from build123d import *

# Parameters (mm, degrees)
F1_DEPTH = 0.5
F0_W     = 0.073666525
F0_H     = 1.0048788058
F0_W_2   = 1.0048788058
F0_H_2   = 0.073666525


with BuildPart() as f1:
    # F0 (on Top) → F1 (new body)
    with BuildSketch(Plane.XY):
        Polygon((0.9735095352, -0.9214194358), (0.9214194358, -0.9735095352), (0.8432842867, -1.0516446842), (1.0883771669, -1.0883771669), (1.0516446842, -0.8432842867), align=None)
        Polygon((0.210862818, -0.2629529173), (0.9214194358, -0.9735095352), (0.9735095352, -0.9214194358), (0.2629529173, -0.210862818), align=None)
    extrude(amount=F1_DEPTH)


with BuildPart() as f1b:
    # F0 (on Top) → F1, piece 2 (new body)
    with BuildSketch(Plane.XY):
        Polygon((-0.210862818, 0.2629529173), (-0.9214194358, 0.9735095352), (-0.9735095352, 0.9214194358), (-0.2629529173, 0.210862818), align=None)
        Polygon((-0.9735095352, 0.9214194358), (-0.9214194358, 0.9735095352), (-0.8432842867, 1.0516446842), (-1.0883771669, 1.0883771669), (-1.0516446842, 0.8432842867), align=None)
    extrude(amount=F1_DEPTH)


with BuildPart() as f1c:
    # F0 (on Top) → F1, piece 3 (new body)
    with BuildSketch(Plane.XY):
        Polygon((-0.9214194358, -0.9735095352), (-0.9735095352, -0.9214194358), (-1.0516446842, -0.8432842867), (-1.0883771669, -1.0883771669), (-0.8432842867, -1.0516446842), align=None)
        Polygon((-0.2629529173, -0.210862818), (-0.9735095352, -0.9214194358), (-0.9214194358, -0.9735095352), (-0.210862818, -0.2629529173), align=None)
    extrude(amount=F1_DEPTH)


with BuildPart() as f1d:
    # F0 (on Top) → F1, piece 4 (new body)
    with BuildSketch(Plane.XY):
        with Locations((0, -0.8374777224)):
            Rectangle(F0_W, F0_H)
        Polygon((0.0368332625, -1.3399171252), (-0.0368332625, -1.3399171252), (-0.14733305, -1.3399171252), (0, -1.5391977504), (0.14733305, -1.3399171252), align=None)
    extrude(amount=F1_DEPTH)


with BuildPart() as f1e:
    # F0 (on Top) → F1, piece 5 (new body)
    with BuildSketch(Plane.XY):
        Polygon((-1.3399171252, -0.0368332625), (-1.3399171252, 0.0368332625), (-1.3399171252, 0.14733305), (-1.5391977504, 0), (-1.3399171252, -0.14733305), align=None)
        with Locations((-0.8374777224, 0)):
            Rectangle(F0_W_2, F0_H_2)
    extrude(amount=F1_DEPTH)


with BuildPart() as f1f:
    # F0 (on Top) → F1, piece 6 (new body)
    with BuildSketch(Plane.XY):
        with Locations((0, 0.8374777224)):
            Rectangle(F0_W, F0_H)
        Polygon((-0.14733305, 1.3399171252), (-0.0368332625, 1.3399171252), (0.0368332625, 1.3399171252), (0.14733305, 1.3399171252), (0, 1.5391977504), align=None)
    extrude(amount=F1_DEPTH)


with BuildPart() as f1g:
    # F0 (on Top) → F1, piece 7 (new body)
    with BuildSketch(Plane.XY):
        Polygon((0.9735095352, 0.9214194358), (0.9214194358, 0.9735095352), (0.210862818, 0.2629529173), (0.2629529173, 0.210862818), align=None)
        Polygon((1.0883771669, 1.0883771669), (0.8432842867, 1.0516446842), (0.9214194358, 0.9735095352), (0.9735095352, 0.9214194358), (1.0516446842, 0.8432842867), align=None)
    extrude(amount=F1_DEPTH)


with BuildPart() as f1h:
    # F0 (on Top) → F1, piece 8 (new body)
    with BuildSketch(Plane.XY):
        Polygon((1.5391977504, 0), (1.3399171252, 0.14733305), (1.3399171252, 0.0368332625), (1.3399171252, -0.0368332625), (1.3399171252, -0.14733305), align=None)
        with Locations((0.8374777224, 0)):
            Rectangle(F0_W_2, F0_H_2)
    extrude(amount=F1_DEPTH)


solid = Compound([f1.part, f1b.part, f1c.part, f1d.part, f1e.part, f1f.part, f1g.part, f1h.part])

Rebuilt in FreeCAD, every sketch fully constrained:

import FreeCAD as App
import Part
import Sketcher
from FreeCAD import Vector
Q = App.Units.Quantity


def add_polygon(sketch, points):
    """Adds a closed chain of lines whose ends are joined by coincident constraints."""
    first, n = sketch.GeometryCount, len(points)
    for a, b in zip(points, points[1:] + points[:1]):
        sketch.addGeometry(Part.LineSegment(App.Vector(*a, 0), App.Vector(*b, 0)), False)
    for i in range(n):
        sketch.addConstraint(Sketcher.Constraint("Coincident", first + i, 2, first + (i + 1) % n, 1))

doc = App.newDocument("Part")
body = doc.addObject("PartDesign::Body", "Body")

# Sketch on XY plane
sketch1 = body.newObject("Sketcher::SketchObject", "Sketch")
sketch1.AttachmentSupport = (doc.getObject("XY_Plane"), [""])
sketch1.MapMode = "FlatFace"
add_polygon(sketch1, [(0.92, -0.97), (0.84, -1.05), (1.09, -1.09), (1.05, -0.84), (0.97, -0.92), (0.26, -0.21), (0.21, -0.26)])  # lines 0-6
sketch1.addConstraint([
    Sketcher.Constraint("Parallel", 0, 3),
    Sketcher.Constraint("Perpendicular", 3, 4),
    Sketcher.Constraint("Perpendicular", 4, 5),
    Sketcher.Constraint("Perpendicular", 5, 6),
    Sketcher.Constraint("Equal", 1, 2),
    Sketcher.Constraint("Equal", 0, 3),
    Sketcher.Constraint("Equal", 4, 6),
    Sketcher.Constraint("Angle", 0, Q("-135 deg")),
    Sketcher.Constraint("Distance", 0, Q("0.1105 mm")),
    Sketcher.Constraint("Distance", 1, Q("0.24783 mm")),
    Sketcher.Constraint("Distance", 4, Q("1.004879 mm")),
    Sketcher.Constraint("DistanceX", -1, 1, 3, 2, Q("0.97351 mm")),
    Sketcher.Constraint("DistanceY", 3, 2, -1, 1, Q("0.921419 mm")),
    Sketcher.Constraint("DistanceX", -1, 1, 6, 2, Q("0.921419 mm")),
])
pad1 = body.newObject("PartDesign::Pad", "Pad")
pad1.Profile = sketch1
pad1.Length = 0.5
body2 = doc.addObject("PartDesign::Body", "Body001")

# Sketch on XY plane
sketch2 = body2.newObject("Sketcher::SketchObject", "Sketch001")
sketch2.AttachmentSupport = (doc.getObject("XY_Plane001"), [""])
sketch2.MapMode = "FlatFace"
add_polygon(sketch2, [(-0.21, 0.26), (-0.92, 0.97), (-0.84, 1.05), (-1.09, 1.09), (-1.05, 0.84), (-0.97, 0.92), (-0.26, 0.21)])  # lines 0-6
sketch2.addConstraint([
    Sketcher.Constraint("Perpendicular", 0, 1),
    Sketcher.Constraint("Parallel", 1, 4),
    Sketcher.Constraint("Perpendicular", 4, 5),
    Sketcher.Constraint("Perpendicular", 5, 6),
    Sketcher.Constraint("Equal", 2, 3),
    Sketcher.Constraint("Equal", 1, 4),
    Sketcher.Constraint("Equal", 0, 5),
    Sketcher.Constraint("Angle", 0, Q("135 deg")),
    Sketcher.Constraint("Distance", 1, Q("0.1105 mm")),
    Sketcher.Constraint("Distance", 0, Q("1.004879 mm")),
    Sketcher.Constraint("Distance", 2, Q("0.24783 mm")),
    Sketcher.Constraint("DistanceX", 0, 2, -1, 1, Q("0.921419 mm")),
    Sketcher.Constraint("DistanceY", -1, 1, 0, 2, Q("0.97351 mm")),
    Sketcher.Constraint("DistanceX", 4, 2, -1, 1, Q("0.97351 mm")),
])
pad2 = body2.newObject("PartDesign::Pad", "Pad001")
pad2.Profile = sketch2
pad2.Length = 0.5
body3 = doc.addObject("PartDesign::Body", "Body002")

# Sketch on XY plane
sketch3 = body3.newObject("Sketcher::SketchObject", "Sketch002")
sketch3.AttachmentSupport = (doc.getObject("XY_Plane002"), [""])
sketch3.MapMode = "FlatFace"
add_polygon(sketch3, [(-0.97, -0.92), (-1.05, -0.84), (-1.09, -1.09), (-0.84, -1.05), (-0.92, -0.97), (-0.21, -0.26), (-0.26, -0.21)])  # lines 0-6
sketch3.addConstraint([
    Sketcher.Constraint("Parallel", 0, 3),
    Sketcher.Constraint("Perpendicular", 3, 4),
    Sketcher.Constraint("Perpendicular", 4, 5),
    Sketcher.Constraint("Perpendicular", 5, 6),
    Sketcher.Constraint("Equal", 1, 2),
    Sketcher.Constraint("Equal", 0, 3),
    Sketcher.Constraint("Equal", 4, 6),
    Sketcher.Constraint("Angle", 0, Q("135 deg")),
    Sketcher.Constraint("Distance", 0, Q("0.1105 mm")),
    Sketcher.Constraint("Distance", 1, Q("0.24783 mm")),
    Sketcher.Constraint("Distance", 4, Q("1.004879 mm")),
    Sketcher.Constraint("DistanceX", 3, 2, -1, 1, Q("0.921419 mm")),
    Sketcher.Constraint("DistanceY", 3, 2, -1, 1, Q("0.97351 mm")),
    Sketcher.Constraint("DistanceX", 6, 2, -1, 1, Q("0.97351 mm")),
])
pad3 = body3.newObject("PartDesign::Pad", "Pad002")
pad3.Profile = sketch3
pad3.Length = 0.5
body4 = doc.addObject("PartDesign::Body", "Body003")

# Sketch on XY plane
sketch4 = body4.newObject("Sketcher::SketchObject", "Sketch003")
sketch4.AttachmentSupport = (doc.getObject("XY_Plane003"), [""])
sketch4.MapMode = "FlatFace"
add_polygon(sketch4, [(-0.04, -0.34), (-0.04, -1.34), (-0.15, -1.34), (0, -1.54), (0.15, -1.34), (0.04, -1.34), (0.04, -0.34)])  # lines 0-6
sketch4.addConstraint([
    Sketcher.Constraint("Vertical", 0),
    Sketcher.Constraint("Horizontal", 1),
    Sketcher.Constraint("Horizontal", 4),
    Sketcher.Constraint("Vertical", 5),
    Sketcher.Constraint("Horizontal", 6),
    Sketcher.Constraint("Symmetric", 1, 2, 3, 2, -2),
    Sketcher.Constraint("PointOnObject", 2, 2, -2),
    Sketcher.Constraint("Equal", 1, 4),
    Sketcher.Constraint("DistanceX", 1, 2, 1, 1, Q("0.1105 mm")),
    Sketcher.Constraint("DistanceY", 0, 2, 0, 1, Q("1.004879 mm")),
    Sketcher.Constraint("Distance", 2, Q("0.24783 mm")),
    Sketcher.Constraint("DistanceX", 6, 2, 6, 1, Q("0.073667 mm")),
    Sketcher.Constraint("DistanceY", 5, 2, -1, 1, Q("0.335038 mm")),
])
pad4 = body4.newObject("PartDesign::Pad", "Pad003")
pad4.Profile = sketch4
pad4.Length = 0.5
body5 = doc.addObject("PartDesign::Body", "Body004")

# Sketch on XY plane
sketch5 = body5.newObject("Sketcher::SketchObject", "Sketch004")
sketch5.AttachmentSupport = (doc.getObject("XY_Plane004"), [""])
sketch5.MapMode = "FlatFace"
add_polygon(sketch5, [(-1.34, 0.15), (-1.54, 0), (-1.34, -0.15), (-1.34, -0.04), (-0.34, -0.04), (-0.34, 0.04), (-1.34, 0.04)])  # lines 0-6
sketch5.addConstraint([
    Sketcher.Constraint("Vertical", 2),
    Sketcher.Constraint("Horizontal", 3),
    Sketcher.Constraint("Vertical", 4),
    Sketcher.Constraint("Horizontal", 5),
    Sketcher.Constraint("Vertical", 6),
    Sketcher.Constraint("Symmetric", 2, 2, 5, 2, -1),
    Sketcher.Constraint("PointOnObject", 0, 2, -1),
    Sketcher.Constraint("Equal", 2, 6),
    Sketcher.Constraint("DistanceY", 2, 1, 2, 2, Q("0.1105 mm")),
    Sketcher.Constraint("DistanceX", 3, 1, 3, 2, Q("1.004879 mm")),
    Sketcher.Constraint("Distance", 0, Q("0.24783 mm")),
    Sketcher.Constraint("DistanceY", 4, 1, 4, 2, Q("0.073667 mm")),
    Sketcher.Constraint("DistanceX", 3, 2, -1, 1, Q("0.335038 mm")),
])
pad5 = body5.newObject("PartDesign::Pad", "Pad004")
pad5.Profile = sketch5
pad5.Length = 0.5
body6 = doc.addObject("PartDesign::Body", "Body005")

# Sketch on XY plane
sketch6 = body6.newObject("Sketcher::SketchObject", "Sketch005")
sketch6.AttachmentSupport = (doc.getObject("XY_Plane005"), [""])
sketch6.MapMode = "FlatFace"
add_polygon(sketch6, [(-0.04, 1.34), (-0.04, 0.34), (0.04, 0.34), (0.04, 1.34), (0.15, 1.34), (0, 1.54), (-0.15, 1.34)])  # lines 0-6
sketch6.addConstraint([
    Sketcher.Constraint("Vertical", 0),
    Sketcher.Constraint("Horizontal", 1),
    Sketcher.Constraint("Vertical", 2),
    Sketcher.Constraint("Horizontal", 3),
    Sketcher.Constraint("Horizontal", 6),
    Sketcher.Constraint("Symmetric", 3, 2, 5, 2, -2),
    Sketcher.Constraint("PointOnObject", 4, 2, -2),
    Sketcher.Constraint("Equal", 3, 6),
    Sketcher.Constraint("DistanceX", 3, 1, 3, 2, Q("0.1105 mm")),
    Sketcher.Constraint("DistanceY", 0, 2, 0, 1, Q("1.004879 mm")),
    Sketcher.Constraint("Distance", 4, Q("0.24783 mm")),
    Sketcher.Constraint("DistanceX", 1, 1, 1, 2, Q("0.073667 mm")),
    Sketcher.Constraint("DistanceY", -1, 1, 0, 2, Q("0.335038 mm")),
])
pad6 = body6.newObject("PartDesign::Pad", "Pad005")
pad6.Profile = sketch6
pad6.Length = 0.5
body7 = doc.addObject("PartDesign::Body", "Body006")

# Sketch on XY plane
sketch7 = body7.newObject("Sketcher::SketchObject", "Sketch006")
sketch7.AttachmentSupport = (doc.getObject("XY_Plane006"), [""])
sketch7.MapMode = "FlatFace"
add_polygon(sketch7, [(0.92, 0.97), (0.21, 0.26), (0.26, 0.21), (0.97, 0.92), (1.05, 0.84), (1.09, 1.09), (0.84, 1.05)])  # lines 0-6
sketch7.addConstraint([
    Sketcher.Constraint("Perpendicular", 0, 1),
    Sketcher.Constraint("Perpendicular", 1, 2),
    Sketcher.Constraint("Perpendicular", 2, 3),
    Sketcher.Constraint("Parallel", 3, 6),
    Sketcher.Constraint("Equal", 0, 2),
    Sketcher.Constraint("Equal", 4, 5),
    Sketcher.Constraint("Equal", 3, 6),
    Sketcher.Constraint("Angle", 0, Q("-135 deg")),
    Sketcher.Constraint("Distance", 3, Q("0.1105 mm")),
    Sketcher.Constraint("Distance", 0, Q("1.004879 mm")),
    Sketcher.Constraint("Distance", 4, Q("0.24783 mm")),
    Sketcher.Constraint("DistanceX", -1, 1, 2, 2, Q("0.97351 mm")),
    Sketcher.Constraint("DistanceY", -1, 1, 2, 2, Q("0.921419 mm")),
    Sketcher.Constraint("DistanceX", -1, 1, 6, 2, Q("0.921419 mm")),
])
pad7 = body7.newObject("PartDesign::Pad", "Pad006")
pad7.Profile = sketch7
pad7.Length = 0.5
body8 = doc.addObject("PartDesign::Body", "Body007")

# Sketch on XY plane
sketch8 = body8.newObject("Sketcher::SketchObject", "Sketch007")
sketch8.AttachmentSupport = (doc.getObject("XY_Plane007"), [""])
sketch8.MapMode = "FlatFace"
add_polygon(sketch8, [(1.54, 0), (1.34, 0.15), (1.34, 0.04), (0.34, 0.04), (0.34, -0.04), (1.34, -0.04), (1.34, -0.15)])  # lines 0-6
sketch8.addConstraint([
    Sketcher.Constraint("Vertical", 1),
    Sketcher.Constraint("Horizontal", 2),
    Sketcher.Constraint("Vertical", 3),
    Sketcher.Constraint("Horizontal", 4),
    Sketcher.Constraint("Vertical", 5),
    Sketcher.Constraint("Symmetric", 1, 2, 4, 2, -1),
    Sketcher.Constraint("PointOnObject", 6, 2, -1),
    Sketcher.Constraint("Equal", 1, 5),
    Sketcher.Constraint("DistanceY", 1, 2, 1, 1, Q("0.1105 mm")),
    Sketcher.Constraint("DistanceX", 2, 2, 2, 1, Q("1.004879 mm")),
    Sketcher.Constraint("Distance", 0, Q("0.24783 mm")),
    Sketcher.Constraint("DistanceY", 3, 2, 3, 1, Q("0.073667 mm")),
    Sketcher.Constraint("DistanceX", -1, 1, 2, 2, Q("0.335038 mm")),
])
pad8 = body8.newObject("PartDesign::Pad", "Pad007")
pad8.Profile = sketch8
pad8.Length = 0.5

doc.recompute()
